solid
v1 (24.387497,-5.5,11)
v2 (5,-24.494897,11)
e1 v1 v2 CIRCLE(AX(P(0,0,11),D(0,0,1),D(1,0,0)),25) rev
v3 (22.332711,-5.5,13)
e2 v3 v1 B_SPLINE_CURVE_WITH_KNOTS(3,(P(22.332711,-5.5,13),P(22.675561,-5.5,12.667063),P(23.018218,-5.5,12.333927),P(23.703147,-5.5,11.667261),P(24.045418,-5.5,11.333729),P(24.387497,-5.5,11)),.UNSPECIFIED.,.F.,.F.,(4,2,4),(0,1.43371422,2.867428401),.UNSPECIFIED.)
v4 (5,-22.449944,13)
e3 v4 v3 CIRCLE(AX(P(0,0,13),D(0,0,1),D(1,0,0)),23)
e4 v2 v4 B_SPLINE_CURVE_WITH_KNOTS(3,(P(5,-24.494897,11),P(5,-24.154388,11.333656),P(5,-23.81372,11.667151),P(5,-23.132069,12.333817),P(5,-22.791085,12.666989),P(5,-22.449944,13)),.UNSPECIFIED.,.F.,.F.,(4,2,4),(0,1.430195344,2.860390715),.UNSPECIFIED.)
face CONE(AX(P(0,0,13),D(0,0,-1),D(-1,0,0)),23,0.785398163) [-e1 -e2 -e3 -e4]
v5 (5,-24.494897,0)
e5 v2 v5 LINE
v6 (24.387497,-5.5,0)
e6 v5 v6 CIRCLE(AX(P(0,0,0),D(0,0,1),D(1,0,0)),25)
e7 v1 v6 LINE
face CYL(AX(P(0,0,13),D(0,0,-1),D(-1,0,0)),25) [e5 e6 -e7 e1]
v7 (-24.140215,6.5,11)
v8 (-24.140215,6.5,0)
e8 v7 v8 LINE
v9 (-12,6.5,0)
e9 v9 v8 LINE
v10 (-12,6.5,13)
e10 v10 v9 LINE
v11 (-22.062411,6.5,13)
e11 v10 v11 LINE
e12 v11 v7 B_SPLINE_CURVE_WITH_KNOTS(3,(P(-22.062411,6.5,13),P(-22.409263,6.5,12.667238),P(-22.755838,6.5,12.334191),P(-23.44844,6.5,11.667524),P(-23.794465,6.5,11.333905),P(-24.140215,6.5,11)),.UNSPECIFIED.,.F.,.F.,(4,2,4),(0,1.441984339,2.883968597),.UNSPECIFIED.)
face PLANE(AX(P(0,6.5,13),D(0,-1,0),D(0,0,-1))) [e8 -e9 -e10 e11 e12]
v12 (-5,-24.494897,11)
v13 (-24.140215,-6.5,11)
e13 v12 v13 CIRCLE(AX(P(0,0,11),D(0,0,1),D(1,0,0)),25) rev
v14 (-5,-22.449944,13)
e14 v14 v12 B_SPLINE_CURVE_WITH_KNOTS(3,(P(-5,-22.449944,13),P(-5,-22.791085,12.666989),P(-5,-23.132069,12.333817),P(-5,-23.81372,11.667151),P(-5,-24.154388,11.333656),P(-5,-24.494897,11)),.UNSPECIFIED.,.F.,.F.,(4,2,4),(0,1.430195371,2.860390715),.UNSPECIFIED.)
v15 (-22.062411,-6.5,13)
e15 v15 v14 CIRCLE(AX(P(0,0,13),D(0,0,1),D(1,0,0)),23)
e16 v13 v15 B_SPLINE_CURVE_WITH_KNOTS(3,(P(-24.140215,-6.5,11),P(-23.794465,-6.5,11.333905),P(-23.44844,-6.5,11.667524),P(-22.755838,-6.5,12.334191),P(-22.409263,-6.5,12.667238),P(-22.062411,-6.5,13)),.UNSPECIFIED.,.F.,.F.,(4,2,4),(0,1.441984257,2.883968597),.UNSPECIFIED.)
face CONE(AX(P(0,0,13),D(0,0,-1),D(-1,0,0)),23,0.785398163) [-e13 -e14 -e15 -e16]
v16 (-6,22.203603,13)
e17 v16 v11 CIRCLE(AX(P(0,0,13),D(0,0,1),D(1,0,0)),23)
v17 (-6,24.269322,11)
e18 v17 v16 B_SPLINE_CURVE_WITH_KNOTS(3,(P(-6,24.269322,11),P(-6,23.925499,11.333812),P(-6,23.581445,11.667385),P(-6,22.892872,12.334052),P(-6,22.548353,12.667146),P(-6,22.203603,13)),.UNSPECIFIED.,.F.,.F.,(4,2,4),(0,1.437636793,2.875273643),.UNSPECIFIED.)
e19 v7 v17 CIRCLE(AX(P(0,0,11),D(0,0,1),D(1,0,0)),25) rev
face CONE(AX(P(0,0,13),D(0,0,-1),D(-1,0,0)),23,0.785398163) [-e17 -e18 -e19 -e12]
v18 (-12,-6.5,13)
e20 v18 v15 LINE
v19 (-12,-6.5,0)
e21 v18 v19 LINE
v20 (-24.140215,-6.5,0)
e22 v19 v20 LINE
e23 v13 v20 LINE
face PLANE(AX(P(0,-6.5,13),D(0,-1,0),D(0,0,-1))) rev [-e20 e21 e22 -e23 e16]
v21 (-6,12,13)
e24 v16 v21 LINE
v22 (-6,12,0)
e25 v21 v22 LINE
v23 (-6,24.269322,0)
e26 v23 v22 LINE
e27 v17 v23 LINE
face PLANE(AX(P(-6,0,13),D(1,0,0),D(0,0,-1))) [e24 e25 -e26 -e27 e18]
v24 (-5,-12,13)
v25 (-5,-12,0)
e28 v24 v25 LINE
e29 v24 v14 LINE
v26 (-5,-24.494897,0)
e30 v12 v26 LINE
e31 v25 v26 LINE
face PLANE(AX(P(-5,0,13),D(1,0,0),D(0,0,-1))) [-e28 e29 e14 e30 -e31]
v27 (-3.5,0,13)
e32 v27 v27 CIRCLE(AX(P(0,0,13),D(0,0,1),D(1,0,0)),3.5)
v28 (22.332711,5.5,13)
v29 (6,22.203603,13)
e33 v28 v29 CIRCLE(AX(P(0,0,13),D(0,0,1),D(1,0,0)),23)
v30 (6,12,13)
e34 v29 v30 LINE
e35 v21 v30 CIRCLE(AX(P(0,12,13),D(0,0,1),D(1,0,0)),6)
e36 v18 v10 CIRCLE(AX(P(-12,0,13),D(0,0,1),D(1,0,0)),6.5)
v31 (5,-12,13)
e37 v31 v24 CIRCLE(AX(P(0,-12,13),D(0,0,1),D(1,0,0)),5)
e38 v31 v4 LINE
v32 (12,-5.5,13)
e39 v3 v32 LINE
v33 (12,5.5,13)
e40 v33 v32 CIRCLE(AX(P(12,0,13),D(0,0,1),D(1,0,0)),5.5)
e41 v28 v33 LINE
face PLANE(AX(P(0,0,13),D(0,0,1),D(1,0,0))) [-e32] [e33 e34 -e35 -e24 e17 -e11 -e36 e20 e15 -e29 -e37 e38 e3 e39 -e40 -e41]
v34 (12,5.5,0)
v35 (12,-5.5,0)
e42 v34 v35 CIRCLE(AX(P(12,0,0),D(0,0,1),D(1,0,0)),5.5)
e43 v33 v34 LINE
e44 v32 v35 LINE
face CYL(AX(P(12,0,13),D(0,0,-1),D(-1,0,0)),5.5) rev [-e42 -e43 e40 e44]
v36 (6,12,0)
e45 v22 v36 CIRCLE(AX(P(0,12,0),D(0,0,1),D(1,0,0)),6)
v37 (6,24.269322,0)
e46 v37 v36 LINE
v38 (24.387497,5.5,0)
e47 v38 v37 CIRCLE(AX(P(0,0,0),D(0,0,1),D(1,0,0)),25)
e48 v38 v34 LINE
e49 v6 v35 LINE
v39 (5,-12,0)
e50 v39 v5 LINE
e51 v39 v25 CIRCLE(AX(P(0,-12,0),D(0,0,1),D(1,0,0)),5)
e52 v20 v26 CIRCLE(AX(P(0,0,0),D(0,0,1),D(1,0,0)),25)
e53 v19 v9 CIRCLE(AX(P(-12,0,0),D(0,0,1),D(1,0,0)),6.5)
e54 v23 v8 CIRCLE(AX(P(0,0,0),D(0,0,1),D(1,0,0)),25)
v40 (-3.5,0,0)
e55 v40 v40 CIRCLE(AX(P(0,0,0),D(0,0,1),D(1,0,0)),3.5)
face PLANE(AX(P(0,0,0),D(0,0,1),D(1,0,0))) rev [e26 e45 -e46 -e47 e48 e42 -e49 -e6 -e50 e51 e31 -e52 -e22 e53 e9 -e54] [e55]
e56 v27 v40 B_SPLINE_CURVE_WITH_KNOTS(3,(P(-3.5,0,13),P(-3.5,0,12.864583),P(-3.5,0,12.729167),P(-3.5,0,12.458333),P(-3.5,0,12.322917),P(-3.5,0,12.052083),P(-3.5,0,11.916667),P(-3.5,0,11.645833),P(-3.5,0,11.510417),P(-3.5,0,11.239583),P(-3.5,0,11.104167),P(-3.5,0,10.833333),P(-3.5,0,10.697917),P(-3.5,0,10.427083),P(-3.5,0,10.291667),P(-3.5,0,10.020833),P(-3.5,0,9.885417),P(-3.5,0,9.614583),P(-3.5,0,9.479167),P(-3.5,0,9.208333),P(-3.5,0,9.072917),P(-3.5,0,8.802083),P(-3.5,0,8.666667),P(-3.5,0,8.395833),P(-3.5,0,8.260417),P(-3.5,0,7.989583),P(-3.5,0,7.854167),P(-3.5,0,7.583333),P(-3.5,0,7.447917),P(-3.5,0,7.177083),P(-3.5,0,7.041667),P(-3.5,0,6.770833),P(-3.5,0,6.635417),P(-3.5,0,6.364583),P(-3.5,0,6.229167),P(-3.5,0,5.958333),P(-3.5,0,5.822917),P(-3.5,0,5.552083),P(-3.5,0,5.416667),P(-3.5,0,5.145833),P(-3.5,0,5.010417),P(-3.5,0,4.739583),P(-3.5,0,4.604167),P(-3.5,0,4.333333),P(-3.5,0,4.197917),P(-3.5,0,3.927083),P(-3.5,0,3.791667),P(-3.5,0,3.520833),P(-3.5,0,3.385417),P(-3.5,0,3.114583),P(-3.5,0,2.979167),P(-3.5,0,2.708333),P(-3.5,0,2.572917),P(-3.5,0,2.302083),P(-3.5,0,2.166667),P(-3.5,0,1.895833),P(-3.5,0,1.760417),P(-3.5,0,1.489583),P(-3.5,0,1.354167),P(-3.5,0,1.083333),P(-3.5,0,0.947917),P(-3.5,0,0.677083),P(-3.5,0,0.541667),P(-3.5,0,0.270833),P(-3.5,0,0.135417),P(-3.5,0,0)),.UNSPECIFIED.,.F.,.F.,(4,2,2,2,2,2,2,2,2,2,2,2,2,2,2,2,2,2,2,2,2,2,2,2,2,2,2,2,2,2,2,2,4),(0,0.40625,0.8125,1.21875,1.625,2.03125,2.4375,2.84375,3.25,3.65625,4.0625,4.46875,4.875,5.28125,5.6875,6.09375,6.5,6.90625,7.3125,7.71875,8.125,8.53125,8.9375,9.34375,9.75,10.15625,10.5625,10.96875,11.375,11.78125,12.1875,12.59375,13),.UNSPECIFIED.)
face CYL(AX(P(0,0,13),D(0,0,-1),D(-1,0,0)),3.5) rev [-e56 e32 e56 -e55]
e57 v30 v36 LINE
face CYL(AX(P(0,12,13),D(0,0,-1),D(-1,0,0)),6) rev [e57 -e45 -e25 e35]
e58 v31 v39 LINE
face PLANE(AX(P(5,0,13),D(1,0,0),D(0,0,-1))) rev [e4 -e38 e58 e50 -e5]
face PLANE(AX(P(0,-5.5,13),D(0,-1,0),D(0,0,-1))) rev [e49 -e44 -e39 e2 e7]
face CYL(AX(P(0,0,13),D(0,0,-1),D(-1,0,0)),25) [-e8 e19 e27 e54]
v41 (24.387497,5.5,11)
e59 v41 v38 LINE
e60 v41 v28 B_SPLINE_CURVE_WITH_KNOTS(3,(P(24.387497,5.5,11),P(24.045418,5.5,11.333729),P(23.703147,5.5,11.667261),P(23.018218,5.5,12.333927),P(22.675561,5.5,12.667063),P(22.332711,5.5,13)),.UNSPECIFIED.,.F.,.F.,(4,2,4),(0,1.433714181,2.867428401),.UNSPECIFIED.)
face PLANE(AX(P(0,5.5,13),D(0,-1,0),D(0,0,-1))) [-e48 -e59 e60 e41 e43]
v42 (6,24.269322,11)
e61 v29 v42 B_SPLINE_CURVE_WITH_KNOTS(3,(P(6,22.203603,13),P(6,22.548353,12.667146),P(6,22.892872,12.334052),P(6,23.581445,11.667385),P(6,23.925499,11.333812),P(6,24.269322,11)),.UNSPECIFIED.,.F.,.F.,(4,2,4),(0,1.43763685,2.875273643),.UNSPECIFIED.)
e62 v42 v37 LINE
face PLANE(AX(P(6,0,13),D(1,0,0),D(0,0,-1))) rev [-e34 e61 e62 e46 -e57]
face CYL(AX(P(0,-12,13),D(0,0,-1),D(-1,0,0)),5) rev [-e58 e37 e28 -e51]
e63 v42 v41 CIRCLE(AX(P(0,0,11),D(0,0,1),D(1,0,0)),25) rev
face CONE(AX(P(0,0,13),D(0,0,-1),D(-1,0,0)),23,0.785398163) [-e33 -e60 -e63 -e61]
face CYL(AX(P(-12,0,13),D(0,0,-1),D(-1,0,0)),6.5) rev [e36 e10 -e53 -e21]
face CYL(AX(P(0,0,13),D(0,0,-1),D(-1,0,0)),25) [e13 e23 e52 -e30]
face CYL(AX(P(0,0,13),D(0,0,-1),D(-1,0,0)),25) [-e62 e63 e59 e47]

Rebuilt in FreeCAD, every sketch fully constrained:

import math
import FreeCAD as App
import Part
import Sketcher

V = App.Vector


def edges_at(feature, points):
    """Names of the edges that pass closest to the given points."""
    edges = feature.Shape.Edges
    near = lambda p: min(range(len(edges)), key=lambda i: edges[i].distToShape(Part.Vertex(*p))[0])
    return sorted({f"Edge{near(p) + 1}" for p in points})

doc = App.newDocument("Part")
body = doc.addObject("PartDesign::Body", "Body")

# Sketch on XY plane
sketch1 = doc.addObject("Sketcher::SketchObject", "Sketch")
body.addObject(sketch1)
sketch1.AttachmentSupport = (doc.XY_Plane, [""])
sketch1.MapMode = "FlatFace"
sketch1.addGeometry([
    Part.ArcOfCircle(Part.Circle(V(0, 0, 0), V(0, 0, 1), 25), math.radians(13), math.radians(76)),  # 0
    Part.LineSegment(V(6, 24.3, 0), V(6, 12, 0)),  # 1
    Part.ArcOfCircle(Part.Circle(V(0, 12, 0), V(0, 0, 1), 6), math.radians(180), math.radians(360)),  # 2
    Part.LineSegment(V(-6, 12, 0), V(-6, 24.3, 0)),  # 3
    Part.ArcOfCircle(Part.Circle(V(0, 0, 0), V(0, 0, 1), 25), math.radians(104), math.radians(165)),  # 4
    Part.LineSegment(V(-24.1, 6.5, 0), V(-12, 6.5, 0)),  # 5
    Part.ArcOfCircle(Part.Circle(V(-12, 0, 0), V(0, 0, 1), 6.5), math.radians(-90), math.radians(90)),  # 6
    Part.LineSegment(V(-12, -6.5, 0), V(-24.1, -6.5, 0)),  # 7
    Part.ArcOfCircle(Part.Circle(V(0, 0, 0), V(0, 0, 1), 25), math.radians(-165), math.radians(-102)),  # 8
    Part.LineSegment(V(-5, -24.5, 0), V(-5, -12, 0)),  # 9
    Part.ArcOfCircle(Part.Circle(V(0, -12, 0), V(0, 0, 1), 5), math.radians(0), math.radians(180)),  # 10
    Part.LineSegment(V(5, -12, 0), V(5, -24.5, 0)),  # 11
    Part.ArcOfCircle(Part.Circle(V(0, 0, 0), V(0, 0, 1), 25), math.radians(-78), math.radians(-13)),  # 12
    Part.LineSegment(V(24.4, -5.5, 0), V(12, -5.5, 0)),  # 13
    Part.ArcOfCircle(Part.Circle(V(12, 0, 0), V(0, 0, 1), 5.5), math.radians(90), math.radians(270)),  # 14
    Part.LineSegment(V(12, 5.5, 0), V(24.4, 5.5, 0)),  # 15
    Part.Circle(V(0, 0, 0), V(0, 0, 1), 3.5),  # 16
], False)
sketch1.addConstraint([
    Sketcher.Constraint("Coincident", 0, 2, 1, 1),
    Sketcher.Constraint("Tangent", 1, 2, 2, 2),
    Sketcher.Constraint("Tangent", 2, 1, 3, 1),
    Sketcher.Constraint("Coincident", 3, 2, 4, 1),
    Sketcher.Constraint("Coincident", 4, 2, 5, 1),
    Sketcher.Constraint("Tangent", 5, 2, 6, 2),
    Sketcher.Constraint("Tangent", 6, 1, 7, 1),
    Sketcher.Constraint("Coincident", 7, 2, 8, 1),
    Sketcher.Constraint("Coincident", 8, 2, 9, 1),
    Sketcher.Constraint("Tangent", 9, 2, 10, 2),
    Sketcher.Constraint("Tangent", 10, 1, 11, 1),
    Sketcher.Constraint("Coincident", 11, 2, 12, 1),
    Sketcher.Constraint("Coincident", 12, 2, 13, 1),
    Sketcher.Constraint("Tangent", 13, 2, 14, 2),
    Sketcher.Constraint("Tangent", 14, 1, 15, 1),
    Sketcher.Constraint("Coincident", 15, 2, 0, 1),
    Sketcher.Constraint("Vertical", 1),
    Sketcher.Constraint("Vertical", 3),
    Sketcher.Constraint("Horizontal", 5),
    Sketcher.Constraint("Horizontal", 7),
    Sketcher.Constraint("Vertical", 9),
    Sketcher.Constraint("Vertical", 11),
    Sketcher.Constraint("Horizontal", 13),
    Sketcher.Constraint("Horizontal", 15),
    Sketcher.Constraint("Coincident", 0, 3, -1, 1),
    Sketcher.Constraint("Coincident", 4, 3, -1, 1),
    Sketcher.Constraint("Coincident", 8, 3, -1, 1),
    Sketcher.Constraint("Coincident", 12, 3, -1, 1),
    Sketcher.Constraint("Coincident", 16, 3, -1, 1),
    Sketcher.Constraint("Equal", 0, 4),
    Sketcher.Constraint("Equal", 4, 8),
    Sketcher.Constraint("Equal", 8, 12),
    Sketcher.Constraint("Symmetric", 2, 3, 10, 3, -1, 1),
    Sketcher.Constraint("Symmetric", 6, 3, 14, 3, -1, 1),
    Sketcher.Constraint("PointOnObject", 2, 3, -2),
    Sketcher.Constraint("PointOnObject", 6, 3, -1),
    Sketcher.Constraint("Diameter", 16, 7.0),
    Sketcher.Constraint("Radius", 0, 25.0),
    Sketcher.Constraint("Radius", 2, 6.0),
    Sketcher.Constraint("Radius", 10, 5.0),
    Sketcher.Constraint("Radius", 6, 6.5),
    Sketcher.Constraint("Radius", 14, 5.5),
    Sketcher.Constraint("DistanceY", -1, 1, 2, 3, 12.0),
    Sketcher.Constraint("DistanceX", 6, 3, -1, 1, 12.0),
])
pad1 = doc.addObject("PartDesign::Pad", "Pad")
body.addObject(pad1)
pad1.Profile = sketch1
pad1.Length = 13
doc.recompute()

chamfer = doc.addObject("PartDesign::Chamfer", "Chamfer")
body.addObject(chamfer)
chamfer.Base = (pad1, edges_at(pad1, [
    (17.496, -17.858, 13),
    (17.858, 17.495, 13),
    (-17.494, 17.859, 13),
    (-17.124, -18.214, 13),
]))
chamfer.Size = 2

doc.recompute()
